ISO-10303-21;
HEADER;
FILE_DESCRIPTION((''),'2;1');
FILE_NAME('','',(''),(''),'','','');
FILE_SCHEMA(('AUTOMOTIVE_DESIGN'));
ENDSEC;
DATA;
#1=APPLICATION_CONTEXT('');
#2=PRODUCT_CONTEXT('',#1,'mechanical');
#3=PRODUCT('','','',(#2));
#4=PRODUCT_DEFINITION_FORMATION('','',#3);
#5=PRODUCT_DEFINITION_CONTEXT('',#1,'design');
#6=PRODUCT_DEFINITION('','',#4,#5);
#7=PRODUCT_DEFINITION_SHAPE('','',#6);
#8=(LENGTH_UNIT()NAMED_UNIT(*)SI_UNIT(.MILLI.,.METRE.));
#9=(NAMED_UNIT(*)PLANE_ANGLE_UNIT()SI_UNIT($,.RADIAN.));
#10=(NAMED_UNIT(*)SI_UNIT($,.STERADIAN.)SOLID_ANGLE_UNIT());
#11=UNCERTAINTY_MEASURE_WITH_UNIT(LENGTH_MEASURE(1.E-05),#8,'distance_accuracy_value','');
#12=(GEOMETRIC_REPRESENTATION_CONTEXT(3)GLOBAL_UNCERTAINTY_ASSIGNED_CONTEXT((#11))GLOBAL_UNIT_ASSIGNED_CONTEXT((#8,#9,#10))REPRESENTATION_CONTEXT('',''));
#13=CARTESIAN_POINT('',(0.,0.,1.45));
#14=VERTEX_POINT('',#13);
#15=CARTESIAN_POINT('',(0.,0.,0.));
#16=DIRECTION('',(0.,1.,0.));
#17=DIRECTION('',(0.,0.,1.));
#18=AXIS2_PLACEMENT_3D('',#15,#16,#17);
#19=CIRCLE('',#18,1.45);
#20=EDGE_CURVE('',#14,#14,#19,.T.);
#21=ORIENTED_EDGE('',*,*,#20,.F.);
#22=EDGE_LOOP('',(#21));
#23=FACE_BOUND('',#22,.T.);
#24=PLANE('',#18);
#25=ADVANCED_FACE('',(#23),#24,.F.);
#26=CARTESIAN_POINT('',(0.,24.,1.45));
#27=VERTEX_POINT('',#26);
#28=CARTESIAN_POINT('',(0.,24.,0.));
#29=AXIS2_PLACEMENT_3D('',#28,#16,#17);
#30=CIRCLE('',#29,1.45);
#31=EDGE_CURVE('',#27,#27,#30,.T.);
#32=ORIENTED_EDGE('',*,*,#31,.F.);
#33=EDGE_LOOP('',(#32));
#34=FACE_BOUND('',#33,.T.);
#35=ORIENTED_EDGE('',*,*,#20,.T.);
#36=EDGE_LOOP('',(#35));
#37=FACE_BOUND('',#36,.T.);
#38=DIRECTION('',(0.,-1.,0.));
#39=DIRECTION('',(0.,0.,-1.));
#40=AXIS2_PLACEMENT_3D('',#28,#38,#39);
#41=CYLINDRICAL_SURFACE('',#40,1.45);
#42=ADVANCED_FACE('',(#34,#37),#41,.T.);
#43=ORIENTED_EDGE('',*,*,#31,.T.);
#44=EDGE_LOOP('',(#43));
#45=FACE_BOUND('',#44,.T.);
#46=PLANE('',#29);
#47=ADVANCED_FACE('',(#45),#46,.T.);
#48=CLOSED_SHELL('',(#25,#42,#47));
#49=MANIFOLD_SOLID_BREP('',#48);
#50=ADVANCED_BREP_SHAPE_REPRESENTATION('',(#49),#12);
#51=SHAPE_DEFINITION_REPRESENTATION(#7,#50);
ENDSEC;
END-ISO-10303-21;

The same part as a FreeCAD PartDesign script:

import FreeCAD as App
import Part
import Sketcher
from FreeCAD import Vector

doc = App.newDocument("Part")
body = doc.addObject("PartDesign::Body", "Body")

# Sketch on XZ plane
sketch1 = body.newObject("Sketcher::SketchObject", "Sketch")
sketch1.AttachmentSupport = (doc.getObject("XZ_Plane"), [""])
sketch1.MapMode = "FlatFace"
sketch1.addGeometry(Part.Circle(Vector(0, 0, 0), Vector(0, 0, 1), 1.45), False)
sketch1.addConstraint(Sketcher.Constraint("Coincident", 0, 3, -1, 1))
sketch1.addConstraint(Sketcher.Constraint("Diameter", 0, 2.9))
pad1 = body.newObject("PartDesign::Pad", "Pad")
pad1.Profile = sketch1
pad1.Length = 24
pad1.Reversed = True

doc.recompute()
